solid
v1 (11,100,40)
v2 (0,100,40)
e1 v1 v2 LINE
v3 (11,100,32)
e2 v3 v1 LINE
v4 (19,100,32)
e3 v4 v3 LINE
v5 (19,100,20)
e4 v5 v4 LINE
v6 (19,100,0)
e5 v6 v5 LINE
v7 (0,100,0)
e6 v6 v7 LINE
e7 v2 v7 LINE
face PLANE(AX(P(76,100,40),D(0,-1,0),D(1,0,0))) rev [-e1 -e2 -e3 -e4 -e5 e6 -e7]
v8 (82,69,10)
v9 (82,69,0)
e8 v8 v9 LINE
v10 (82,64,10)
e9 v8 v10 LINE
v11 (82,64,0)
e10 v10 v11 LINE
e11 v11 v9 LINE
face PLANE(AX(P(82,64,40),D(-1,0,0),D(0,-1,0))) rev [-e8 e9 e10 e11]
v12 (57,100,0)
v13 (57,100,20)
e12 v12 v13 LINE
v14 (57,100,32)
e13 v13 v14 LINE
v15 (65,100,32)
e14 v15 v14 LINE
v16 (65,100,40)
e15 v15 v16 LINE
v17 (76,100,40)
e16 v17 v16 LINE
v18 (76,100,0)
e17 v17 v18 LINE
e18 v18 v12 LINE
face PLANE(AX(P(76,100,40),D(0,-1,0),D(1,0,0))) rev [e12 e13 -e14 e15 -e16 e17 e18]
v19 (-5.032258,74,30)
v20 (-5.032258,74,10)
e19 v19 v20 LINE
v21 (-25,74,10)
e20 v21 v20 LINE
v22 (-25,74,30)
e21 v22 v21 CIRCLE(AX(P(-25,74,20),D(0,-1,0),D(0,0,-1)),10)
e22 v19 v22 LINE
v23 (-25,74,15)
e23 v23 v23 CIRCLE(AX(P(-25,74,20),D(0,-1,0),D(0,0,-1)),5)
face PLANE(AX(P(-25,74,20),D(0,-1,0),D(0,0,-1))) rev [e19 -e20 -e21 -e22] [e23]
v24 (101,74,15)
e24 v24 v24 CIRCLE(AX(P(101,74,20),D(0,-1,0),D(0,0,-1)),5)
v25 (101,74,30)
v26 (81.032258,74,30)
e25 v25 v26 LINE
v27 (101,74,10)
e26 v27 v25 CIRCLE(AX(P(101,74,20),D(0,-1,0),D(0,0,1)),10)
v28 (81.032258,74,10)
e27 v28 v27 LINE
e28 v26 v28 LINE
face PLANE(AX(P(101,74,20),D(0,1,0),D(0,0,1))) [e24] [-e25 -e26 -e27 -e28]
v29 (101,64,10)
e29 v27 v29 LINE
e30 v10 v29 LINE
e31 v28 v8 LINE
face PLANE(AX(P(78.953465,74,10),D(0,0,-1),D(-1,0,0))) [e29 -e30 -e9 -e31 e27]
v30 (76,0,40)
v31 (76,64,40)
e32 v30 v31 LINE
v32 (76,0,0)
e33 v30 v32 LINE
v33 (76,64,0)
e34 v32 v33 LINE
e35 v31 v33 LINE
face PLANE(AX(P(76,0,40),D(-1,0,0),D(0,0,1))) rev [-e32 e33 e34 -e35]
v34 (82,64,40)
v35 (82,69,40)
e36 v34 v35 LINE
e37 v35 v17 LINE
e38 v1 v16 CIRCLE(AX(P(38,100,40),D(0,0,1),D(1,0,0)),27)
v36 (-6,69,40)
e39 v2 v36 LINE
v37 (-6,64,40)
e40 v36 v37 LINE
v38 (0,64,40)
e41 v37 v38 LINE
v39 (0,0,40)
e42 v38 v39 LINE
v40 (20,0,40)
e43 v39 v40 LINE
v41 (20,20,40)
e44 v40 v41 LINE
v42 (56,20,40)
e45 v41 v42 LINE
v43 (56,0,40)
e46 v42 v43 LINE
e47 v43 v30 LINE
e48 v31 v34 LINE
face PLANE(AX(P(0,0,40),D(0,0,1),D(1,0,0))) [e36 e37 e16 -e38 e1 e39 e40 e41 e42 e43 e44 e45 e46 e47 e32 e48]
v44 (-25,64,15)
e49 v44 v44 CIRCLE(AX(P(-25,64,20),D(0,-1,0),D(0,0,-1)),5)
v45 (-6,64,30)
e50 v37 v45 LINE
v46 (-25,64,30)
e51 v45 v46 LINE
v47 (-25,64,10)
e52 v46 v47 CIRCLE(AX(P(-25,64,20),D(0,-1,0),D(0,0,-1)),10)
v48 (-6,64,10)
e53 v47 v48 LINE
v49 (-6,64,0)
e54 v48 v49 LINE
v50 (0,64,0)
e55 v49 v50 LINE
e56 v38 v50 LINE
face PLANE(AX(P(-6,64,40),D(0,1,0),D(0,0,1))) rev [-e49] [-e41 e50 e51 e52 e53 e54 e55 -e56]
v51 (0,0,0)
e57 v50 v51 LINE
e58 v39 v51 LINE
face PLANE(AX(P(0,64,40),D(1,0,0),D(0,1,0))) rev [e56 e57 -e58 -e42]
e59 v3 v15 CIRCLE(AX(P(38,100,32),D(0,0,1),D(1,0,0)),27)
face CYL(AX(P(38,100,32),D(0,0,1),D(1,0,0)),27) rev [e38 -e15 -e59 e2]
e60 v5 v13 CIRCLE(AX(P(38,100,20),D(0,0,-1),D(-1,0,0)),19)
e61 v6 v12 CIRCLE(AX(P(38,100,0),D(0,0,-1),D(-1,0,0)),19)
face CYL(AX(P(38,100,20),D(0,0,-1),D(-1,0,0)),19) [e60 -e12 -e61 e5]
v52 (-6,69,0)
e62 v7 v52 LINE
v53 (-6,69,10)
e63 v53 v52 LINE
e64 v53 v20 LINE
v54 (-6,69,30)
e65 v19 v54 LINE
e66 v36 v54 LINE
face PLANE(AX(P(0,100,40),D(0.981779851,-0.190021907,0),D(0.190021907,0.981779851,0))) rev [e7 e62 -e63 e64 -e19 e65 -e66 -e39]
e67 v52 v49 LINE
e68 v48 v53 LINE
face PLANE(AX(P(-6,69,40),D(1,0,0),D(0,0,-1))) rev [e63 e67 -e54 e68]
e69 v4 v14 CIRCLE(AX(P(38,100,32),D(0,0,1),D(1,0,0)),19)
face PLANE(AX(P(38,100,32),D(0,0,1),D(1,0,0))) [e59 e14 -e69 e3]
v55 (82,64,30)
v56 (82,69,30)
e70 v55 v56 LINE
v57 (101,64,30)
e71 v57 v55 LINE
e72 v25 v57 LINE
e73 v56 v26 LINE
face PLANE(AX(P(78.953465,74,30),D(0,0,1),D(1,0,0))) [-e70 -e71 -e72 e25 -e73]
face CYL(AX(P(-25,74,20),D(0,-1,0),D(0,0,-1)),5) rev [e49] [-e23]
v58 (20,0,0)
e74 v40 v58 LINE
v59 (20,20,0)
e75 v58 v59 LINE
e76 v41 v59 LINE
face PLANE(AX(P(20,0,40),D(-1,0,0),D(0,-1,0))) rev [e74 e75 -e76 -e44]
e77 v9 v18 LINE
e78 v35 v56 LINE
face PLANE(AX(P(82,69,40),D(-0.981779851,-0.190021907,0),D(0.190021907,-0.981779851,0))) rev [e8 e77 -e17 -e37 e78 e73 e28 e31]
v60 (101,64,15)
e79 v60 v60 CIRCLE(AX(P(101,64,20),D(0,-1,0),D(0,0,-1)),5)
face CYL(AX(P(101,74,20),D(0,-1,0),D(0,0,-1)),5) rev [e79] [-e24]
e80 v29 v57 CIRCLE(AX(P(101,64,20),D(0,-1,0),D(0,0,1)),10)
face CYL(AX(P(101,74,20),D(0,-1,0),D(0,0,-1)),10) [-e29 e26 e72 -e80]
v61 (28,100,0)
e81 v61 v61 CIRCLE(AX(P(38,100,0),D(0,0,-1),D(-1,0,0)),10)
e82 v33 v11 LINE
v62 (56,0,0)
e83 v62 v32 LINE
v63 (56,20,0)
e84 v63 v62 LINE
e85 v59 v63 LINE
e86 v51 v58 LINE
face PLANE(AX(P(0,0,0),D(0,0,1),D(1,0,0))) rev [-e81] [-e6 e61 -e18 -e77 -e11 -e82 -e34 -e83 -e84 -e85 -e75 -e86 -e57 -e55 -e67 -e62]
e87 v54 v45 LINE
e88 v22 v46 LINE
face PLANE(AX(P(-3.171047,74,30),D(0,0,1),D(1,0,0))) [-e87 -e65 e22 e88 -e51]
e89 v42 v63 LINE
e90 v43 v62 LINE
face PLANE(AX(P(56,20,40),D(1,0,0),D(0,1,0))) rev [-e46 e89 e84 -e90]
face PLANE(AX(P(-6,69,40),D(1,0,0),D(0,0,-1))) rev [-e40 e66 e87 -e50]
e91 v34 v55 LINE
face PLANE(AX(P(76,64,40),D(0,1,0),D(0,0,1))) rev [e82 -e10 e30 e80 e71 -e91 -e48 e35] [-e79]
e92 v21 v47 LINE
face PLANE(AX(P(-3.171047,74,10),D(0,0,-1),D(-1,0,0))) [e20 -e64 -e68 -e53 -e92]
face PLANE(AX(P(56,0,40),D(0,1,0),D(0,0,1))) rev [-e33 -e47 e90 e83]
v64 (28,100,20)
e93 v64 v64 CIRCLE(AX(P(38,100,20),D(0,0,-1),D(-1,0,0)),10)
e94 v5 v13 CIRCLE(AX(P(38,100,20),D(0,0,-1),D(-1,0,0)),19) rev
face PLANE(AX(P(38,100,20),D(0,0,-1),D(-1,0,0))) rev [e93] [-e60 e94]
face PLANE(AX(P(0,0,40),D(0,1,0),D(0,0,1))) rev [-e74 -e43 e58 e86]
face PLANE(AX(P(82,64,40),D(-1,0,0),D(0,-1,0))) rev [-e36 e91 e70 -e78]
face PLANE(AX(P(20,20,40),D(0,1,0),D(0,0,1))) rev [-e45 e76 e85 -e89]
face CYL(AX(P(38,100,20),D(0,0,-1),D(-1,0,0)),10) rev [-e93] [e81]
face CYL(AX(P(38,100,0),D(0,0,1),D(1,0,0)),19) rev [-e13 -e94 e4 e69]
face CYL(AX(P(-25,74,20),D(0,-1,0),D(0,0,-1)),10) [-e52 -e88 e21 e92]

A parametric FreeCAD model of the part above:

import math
import FreeCAD as App
import Part
import Sketcher

V = App.Vector
Q = App.Units.Quantity


def add_polygon(sketch, points):
    """Adds a closed chain of lines whose ends are joined by coincident constraints."""
    first, n = sketch.GeometryCount, len(points)
    for a, b in zip(points, points[1:] + points[:1]):
        sketch.addGeometry(Part.LineSegment(App.Vector(*a, 0), App.Vector(*b, 0)), False)
    for i in range(n):
        sketch.addConstraint(Sketcher.Constraint("Coincident", first + i, 2, first + (i + 1) % n, 1))

doc = App.newDocument("Part")
body = doc.addObject("PartDesign::Body", "Body")

sketch1 = body.newObject("Sketcher::SketchObject", "Sketch")
sketch1.AttachmentSupport = (doc.getObject("XY_Plane"), [""])
sketch1.MapMode = "FlatFace"
add_polygon(sketch1, [(0, 0), (20, 0), (20, 20), (56, 20), (56, 0), (76, 0), (76, 64), (82, 64), (82, 69), (76, 100), (0, 100), (-6, 69), (-6, 64), (0, 64)])
sketch1.addConstraint(Sketcher.Constraint("Horizontal", 0))
sketch1.addConstraint(Sketcher.Constraint("Vertical", 1))
sketch1.addConstraint(Sketcher.Constraint("Horizontal", 2))
sketch1.addConstraint(Sketcher.Constraint("Vertical", 3))
sketch1.addConstraint(Sketcher.Constraint("Horizontal", 4))
sketch1.addConstraint(Sketcher.Constraint("Vertical", 5))
sketch1.addConstraint(Sketcher.Constraint("Horizontal", 6))
sketch1.addConstraint(Sketcher.Constraint("Vertical", 7))
sketch1.addConstraint(Sketcher.Constraint("Horizontal", 9))
sketch1.addConstraint(Sketcher.Constraint("Vertical", 11))
sketch1.addConstraint(Sketcher.Constraint("Horizontal", 12))
sketch1.addConstraint(Sketcher.Constraint("Vertical", 13))
sketch1.addConstraint(Sketcher.Constraint("Coincident", 13, 2, -1, 1))
sketch1.addConstraint(Sketcher.Constraint("PointOnObject", 3, 2, -1))
sketch1.addConstraint(Sketcher.Constraint("PointOnObject", 9, 2, -2))
sketch1.addConstraint(Sketcher.Constraint("Horizontal", 7, 2, 10, 2))
sketch1.addConstraint(Sketcher.Constraint("Horizontal", 6, 2, 11, 2))
sketch1.addConstraint(Sketcher.Constraint("Vertical", 5, 2, 8, 2))
sketch1.addConstraint(Sketcher.Constraint("Equal", 0, 4))
sketch1.addConstraint(Sketcher.Constraint("Equal", 6, 12))
sketch1.addConstraint(Sketcher.Constraint("Equal", 4, 1))
sketch1.addConstraint(Sketcher.Constraint("DistanceX", 0, 1, 0, 2, Q("20 mm")))
sketch1.addConstraint(Sketcher.Constraint("DistanceX", 2, 1, 2, 2, Q("36 mm")))
sketch1.addConstraint(Sketcher.Constraint("DistanceX", 6, 1, 6, 2, Q("6 mm")))
sketch1.addConstraint(Sketcher.Constraint("DistanceY", 5, 1, 5, 2, Q("64 mm")))
sketch1.addConstraint(Sketcher.Constraint("DistanceY", 7, 1, 7, 2, Q("5 mm")))
sketch1.addConstraint(Sketcher.Constraint("DistanceY", -1, 1, 8, 2, Q("100 mm")))
pad1 = body.newObject("PartDesign::Pad", "Pad")
pad1.Profile = sketch1
pad1.Length = 40

sketch2 = body.newObject("Sketcher::SketchObject", "Sketch001")
sketch2.AttachmentSupport = (doc.getObject("XY_Plane"), [""])
sketch2.MapMode = "FlatFace"
sketch2.AttachmentOffset = App.Placement(V(0, 0, 40), App.Rotation())
sketch2.addGeometry(Part.LineSegment(V(65, 100, 0), V(11, 100, 0)), False)
sketch2.addGeometry(Part.ArcOfCircle(Part.Circle(V(38, 100, 0), V(0, 0, 1), 27), math.radians(180), math.radians(360)), False)
sketch2.addConstraint(Sketcher.Constraint("Coincident", 0, 1, 1, 2))
sketch2.addConstraint(Sketcher.Constraint("Coincident", 1, 1, 0, 2))
sketch2.addConstraint(Sketcher.Constraint("Horizontal", 0))
sketch2.addConstraint(Sketcher.Constraint("Horizontal", 1, 3, 0, 1))
sketch2.addConstraint(Sketcher.Constraint("Radius", 1, Q("27 mm")))
sketch2.addConstraint(Sketcher.Constraint("DistanceX", -1, 1, 1, 3, Q("38 mm")))
sketch2.addConstraint(Sketcher.Constraint("DistanceY", -1, 1, 1, 3, Q("100 mm")))
pocket1 = body.newObject("PartDesign::Pocket", "Pocket")
pocket1.Profile = sketch2
pocket1.Length = 8

sketch3 = body.newObject("Sketcher::SketchObject", "Sketch002")
sketch3.AttachmentSupport = (doc.getObject("XY_Plane"), [""])
sketch3.MapMode = "FlatFace"
sketch3.AttachmentOffset = App.Placement(V(0, 0, 32), App.Rotation())
sketch3.addGeometry(Part.LineSegment(V(57, 100, 0), V(19, 100, 0)), False)
sketch3.addGeometry(Part.ArcOfCircle(Part.Circle(V(38, 100, 0), V(0, 0, 1), 19), math.radians(180), math.radians(360)), False)
sketch3.addConstraint(Sketcher.Constraint("Coincident", 0, 1, 1, 2))
sketch3.addConstraint(Sketcher.Constraint("Coincident", 1, 1, 0, 2))
sketch3.addConstraint(Sketcher.Constraint("Horizontal", 0))
sketch3.addConstraint(Sketcher.Constraint("Horizontal", 1, 3, 0, 1))
sketch3.addConstraint(Sketcher.Constraint("Radius", 1, Q("19 mm")))
sketch3.addConstraint(Sketcher.Constraint("DistanceX", -1, 1, 1, 3, Q("38 mm")))
sketch3.addConstraint(Sketcher.Constraint("DistanceY", -1, 1, 1, 3, Q("100 mm")))
pocket2 = body.newObject("PartDesign::Pocket", "Pocket001")
pocket2.Profile = sketch3
pocket2.Type = "ThroughAll"

sketch4 = body.newObject("Sketcher::SketchObject", "Sketch003")
sketch4.AttachmentSupport = (doc.getObject("XY_Plane"), [""])
sketch4.MapMode = "FlatFace"
sketch4.AttachmentOffset = App.Placement(V(0, 0, 20), App.Rotation())
sketch4.addGeometry(Part.Circle(V(38, 100, 0), V(0, 0, 1), 19), False)
sketch4.addGeometry(Part.Circle(V(38, 100, 0), V(0, 0, 1), 10), False)
sketch4.addConstraint(Sketcher.Constraint("Coincident", 1, 3, 0, 3))
sketch4.addConstraint(Sketcher.Constraint("Diameter", 0, Q("38 mm")))
sketch4.addConstraint(Sketcher.Constraint("Diameter", 1, Q("20 mm")))
sketch4.addConstraint(Sketcher.Constraint("DistanceX", -1, 1, 0, 3, Q("38 mm")))
sketch4.addConstraint(Sketcher.Constraint("DistanceY", -1, 1, 0, 3, Q("100 mm")))
pad2 = body.newObject("PartDesign::Pad", "Pad001")
pad2.Profile = sketch4
pad2.Length = 20
pad2.Reversed = True

sketch5 = body.newObject("Sketcher::SketchObject", "Sketch004")
sketch5.AttachmentSupport = (doc.getObject("XZ_Plane"), [""])
sketch5.MapMode = "FlatFace"
sketch5.AttachmentOffset = App.Placement(V(0, 0, -64), App.Rotation())
sketch5.addGeometry(Part.LineSegment(V(-3, 10, 0), V(-3, 30, 0)), False)
sketch5.addGeometry(Part.LineSegment(V(-3, 30, 0), V(-25, 30, 0)), False)
sketch5.addGeometry(Part.ArcOfCircle(Part.Circle(V(-25, 20, 0), V(0, 0, 1), 10), math.radians(90), math.radians(270)), False)
sketch5.addGeometry(Part.LineSegment(V(-25, 10, 0), V(-3, 10, 0)), False)
sketch5.addGeometry(Part.Circle(V(-25, 20, 0), V(0, 0, 1), 5), False)
sketch5.addConstraint(Sketcher.Constraint("Coincident", 0, 2, 1, 1))
sketch5.addConstraint(Sketcher.Constraint("Tangent", 1, 2, 2, 1))
sketch5.addConstraint(Sketcher.Constraint("Tangent", 2, 2, 3, 1))
sketch5.addConstraint(Sketcher.Constraint("Coincident", 3, 2, 0, 1))
sketch5.addConstraint(Sketcher.Constraint("Vertical", 0))
sketch5.addConstraint(Sketcher.Constraint("Horizontal", 1))
sketch5.addConstraint(Sketcher.Constraint("Horizontal", 3))
sketch5.addConstraint(Sketcher.Constraint("Coincident", 4, 3, 2, 3))
sketch5.addConstraint(Sketcher.Constraint("Diameter", 4, Q("10 mm")))
sketch5.addConstraint(Sketcher.Constraint("Radius", 2, Q("10 mm")))
sketch5.addConstraint(Sketcher.Constraint("DistanceX", 2, 3, -1, 1, Q("25 mm")))
sketch5.addConstraint(Sketcher.Constraint("DistanceY", -1, 1, 2, 3, Q("20 mm")))
sketch5.addConstraint(Sketcher.Constraint("DistanceX", 1, 2, 1, 1, Q("21.828953 mm")))
pad3 = body.newObject("PartDesign::Pad", "Pad002")
pad3.Profile = sketch5
pad3.Length = 10
pad3.Reversed = True

sketch6 = body.newObject("Sketcher::SketchObject", "Sketch005")
sketch6.AttachmentSupport = (doc.getObject("XZ_Plane"), [""])
sketch6.MapMode = "FlatFace"
sketch6.AttachmentOffset = App.Placement(V(0, 0, -64), App.Rotation())
sketch6.addGeometry(Part.LineSegment(V(79, 30, 0), V(79, 10, 0)), False)
sketch6.addGeometry(Part.LineSegment(V(79, 10, 0), V(101, 10, 0)), False)
sketch6.addGeometry(Part.ArcOfCircle(Part.Circle(V(101, 20, 0), V(0, 0, 1), 10), math.radians(-90), math.radians(90)), False)
sketch6.addGeometry(Part.LineSegment(V(101, 30, 0), V(79, 30, 0)), False)
sketch6.addGeometry(Part.Circle(V(101, 20, 0), V(0, 0, 1), 5), False)
sketch6.addConstraint(Sketcher.Constraint("Coincident", 0, 2, 1, 1))
sketch6.addConstraint(Sketcher.Constraint("Tangent", 1, 2, 2, 1))
sketch6.addConstraint(Sketcher.Constraint("Tangent", 2, 2, 3, 1))
sketch6.addConstraint(Sketcher.Constraint("Coincident", 3, 2, 0, 1))
sketch6.addConstraint(Sketcher.Constraint("Vertical", 0))
sketch6.addConstraint(Sketcher.Constraint("Horizontal", 1))
sketch6.addConstraint(Sketcher.Constraint("Horizontal", 3))
sketch6.addConstraint(Sketcher.Constraint("Coincident", 4, 3, 2, 3))
sketch6.addConstraint(Sketcher.Constraint("Diameter", 4, Q("10 mm")))
sketch6.addConstraint(Sketcher.Constraint("Radius", 2, Q("10 mm")))
sketch6.addConstraint(Sketcher.Constraint("DistanceX", -1, 1, 2, 3, Q("101 mm")))
sketch6.addConstraint(Sketcher.Constraint("DistanceY", -1, 1, 2, 3, Q("20 mm")))
sketch6.addConstraint(Sketcher.Constraint("DistanceX", 1, 1, 1, 2, Q("22.046535 mm")))
pad4 = body.newObject("PartDesign::Pad", "Pad003")
pad4.Profile = sketch6
pad4.Length = 10
pad4.Reversed = True

doc.recompute()
